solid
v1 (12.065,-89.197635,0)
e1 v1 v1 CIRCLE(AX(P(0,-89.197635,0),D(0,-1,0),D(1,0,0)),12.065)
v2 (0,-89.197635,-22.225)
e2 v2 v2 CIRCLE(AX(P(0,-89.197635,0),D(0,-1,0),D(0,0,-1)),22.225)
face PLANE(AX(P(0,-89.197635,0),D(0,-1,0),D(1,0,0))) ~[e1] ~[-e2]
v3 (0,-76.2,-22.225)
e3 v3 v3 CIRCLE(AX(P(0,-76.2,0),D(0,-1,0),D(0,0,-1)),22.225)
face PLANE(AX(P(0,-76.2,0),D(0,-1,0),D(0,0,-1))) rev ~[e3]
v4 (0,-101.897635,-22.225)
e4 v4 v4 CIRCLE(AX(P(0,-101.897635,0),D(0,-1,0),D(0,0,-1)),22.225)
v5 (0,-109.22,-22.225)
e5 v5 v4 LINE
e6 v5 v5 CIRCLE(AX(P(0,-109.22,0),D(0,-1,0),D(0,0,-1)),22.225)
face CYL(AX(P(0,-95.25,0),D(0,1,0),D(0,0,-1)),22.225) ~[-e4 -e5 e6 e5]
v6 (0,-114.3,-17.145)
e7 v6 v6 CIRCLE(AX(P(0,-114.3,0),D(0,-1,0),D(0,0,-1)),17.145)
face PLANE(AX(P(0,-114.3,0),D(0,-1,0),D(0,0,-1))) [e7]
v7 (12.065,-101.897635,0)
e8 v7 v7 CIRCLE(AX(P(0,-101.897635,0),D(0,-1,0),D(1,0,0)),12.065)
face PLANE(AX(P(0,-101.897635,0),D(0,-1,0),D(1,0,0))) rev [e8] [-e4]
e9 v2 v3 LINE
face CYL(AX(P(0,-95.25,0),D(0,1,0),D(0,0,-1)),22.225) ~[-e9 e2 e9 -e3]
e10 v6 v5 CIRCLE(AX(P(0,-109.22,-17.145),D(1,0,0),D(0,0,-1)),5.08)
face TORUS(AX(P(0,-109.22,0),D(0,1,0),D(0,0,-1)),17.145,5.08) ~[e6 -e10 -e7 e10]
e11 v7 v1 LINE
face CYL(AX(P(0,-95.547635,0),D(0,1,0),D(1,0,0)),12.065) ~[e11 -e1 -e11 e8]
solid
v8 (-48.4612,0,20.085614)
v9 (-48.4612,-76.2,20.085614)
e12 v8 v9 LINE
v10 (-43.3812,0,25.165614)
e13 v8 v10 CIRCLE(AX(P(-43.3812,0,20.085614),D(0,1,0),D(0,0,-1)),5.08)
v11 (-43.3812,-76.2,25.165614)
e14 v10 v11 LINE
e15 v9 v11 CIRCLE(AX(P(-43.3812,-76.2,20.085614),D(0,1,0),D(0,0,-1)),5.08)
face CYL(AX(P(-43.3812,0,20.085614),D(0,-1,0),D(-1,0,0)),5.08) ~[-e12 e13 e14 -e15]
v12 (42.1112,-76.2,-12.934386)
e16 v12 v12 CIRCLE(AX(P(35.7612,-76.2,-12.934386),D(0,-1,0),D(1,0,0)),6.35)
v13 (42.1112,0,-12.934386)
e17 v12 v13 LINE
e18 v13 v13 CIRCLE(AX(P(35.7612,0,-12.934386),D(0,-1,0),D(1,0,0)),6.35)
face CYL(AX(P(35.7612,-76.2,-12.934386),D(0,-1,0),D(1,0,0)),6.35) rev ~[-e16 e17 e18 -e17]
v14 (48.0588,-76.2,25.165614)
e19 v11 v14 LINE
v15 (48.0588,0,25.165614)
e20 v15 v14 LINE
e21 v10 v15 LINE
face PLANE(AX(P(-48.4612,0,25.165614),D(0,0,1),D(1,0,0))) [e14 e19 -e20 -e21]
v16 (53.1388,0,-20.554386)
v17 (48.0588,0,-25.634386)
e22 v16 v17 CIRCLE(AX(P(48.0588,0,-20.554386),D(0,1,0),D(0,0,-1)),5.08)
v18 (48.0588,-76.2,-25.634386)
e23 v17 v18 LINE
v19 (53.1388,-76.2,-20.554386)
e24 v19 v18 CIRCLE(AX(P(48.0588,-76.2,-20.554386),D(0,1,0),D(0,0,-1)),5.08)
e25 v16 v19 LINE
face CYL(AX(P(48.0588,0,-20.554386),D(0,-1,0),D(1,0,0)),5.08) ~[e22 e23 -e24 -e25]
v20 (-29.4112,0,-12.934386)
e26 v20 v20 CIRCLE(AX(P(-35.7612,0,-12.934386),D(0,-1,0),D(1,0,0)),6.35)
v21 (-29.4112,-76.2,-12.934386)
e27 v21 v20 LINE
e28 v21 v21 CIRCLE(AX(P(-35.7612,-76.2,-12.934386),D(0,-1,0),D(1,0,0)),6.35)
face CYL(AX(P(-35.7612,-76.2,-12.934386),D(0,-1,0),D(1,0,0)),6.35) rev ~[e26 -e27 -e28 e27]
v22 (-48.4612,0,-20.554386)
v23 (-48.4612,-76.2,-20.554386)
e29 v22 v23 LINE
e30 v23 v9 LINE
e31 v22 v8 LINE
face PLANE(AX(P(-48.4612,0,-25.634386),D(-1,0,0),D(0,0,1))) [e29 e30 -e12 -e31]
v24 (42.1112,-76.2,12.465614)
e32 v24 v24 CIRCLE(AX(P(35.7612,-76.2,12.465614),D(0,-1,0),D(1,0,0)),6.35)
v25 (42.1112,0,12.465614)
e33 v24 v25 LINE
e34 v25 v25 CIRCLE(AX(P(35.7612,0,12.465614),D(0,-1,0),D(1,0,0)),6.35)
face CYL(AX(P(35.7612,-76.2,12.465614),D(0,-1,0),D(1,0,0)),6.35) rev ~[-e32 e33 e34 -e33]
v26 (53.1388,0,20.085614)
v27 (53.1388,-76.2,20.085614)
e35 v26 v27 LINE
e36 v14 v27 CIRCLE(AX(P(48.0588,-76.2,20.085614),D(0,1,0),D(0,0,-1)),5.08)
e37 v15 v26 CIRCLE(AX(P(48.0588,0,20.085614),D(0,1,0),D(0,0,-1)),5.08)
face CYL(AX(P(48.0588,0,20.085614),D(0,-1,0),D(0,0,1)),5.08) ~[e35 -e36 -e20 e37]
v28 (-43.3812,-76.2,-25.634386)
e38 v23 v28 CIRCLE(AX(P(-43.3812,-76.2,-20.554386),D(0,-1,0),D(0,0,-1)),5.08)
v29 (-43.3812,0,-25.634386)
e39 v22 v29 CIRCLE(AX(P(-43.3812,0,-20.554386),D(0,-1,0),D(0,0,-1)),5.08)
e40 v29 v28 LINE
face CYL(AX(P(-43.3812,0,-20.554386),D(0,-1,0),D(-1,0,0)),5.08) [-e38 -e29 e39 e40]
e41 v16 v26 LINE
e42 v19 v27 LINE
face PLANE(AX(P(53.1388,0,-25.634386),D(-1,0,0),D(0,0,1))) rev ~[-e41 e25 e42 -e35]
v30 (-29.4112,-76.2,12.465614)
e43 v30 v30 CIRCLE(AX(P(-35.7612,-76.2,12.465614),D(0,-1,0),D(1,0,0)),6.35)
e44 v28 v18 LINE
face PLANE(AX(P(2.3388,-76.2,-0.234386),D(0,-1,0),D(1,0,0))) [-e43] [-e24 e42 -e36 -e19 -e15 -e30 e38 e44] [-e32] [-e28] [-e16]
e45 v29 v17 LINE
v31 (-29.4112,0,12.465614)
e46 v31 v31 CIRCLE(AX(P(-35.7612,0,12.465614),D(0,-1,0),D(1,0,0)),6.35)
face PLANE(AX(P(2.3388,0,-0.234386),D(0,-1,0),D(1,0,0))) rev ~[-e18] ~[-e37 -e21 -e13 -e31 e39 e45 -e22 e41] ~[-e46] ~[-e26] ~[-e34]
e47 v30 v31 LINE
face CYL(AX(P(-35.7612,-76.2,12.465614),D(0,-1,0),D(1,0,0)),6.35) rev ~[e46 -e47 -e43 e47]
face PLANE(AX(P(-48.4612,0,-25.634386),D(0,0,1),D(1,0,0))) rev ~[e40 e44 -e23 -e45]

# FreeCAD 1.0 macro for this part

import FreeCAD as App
import Part
import Sketcher

V = App.Vector
Q = App.Units.Quantity


def edges_at(feature, points):
    """Names of the edges that pass closest to the given points."""
    edges = feature.Shape.Edges
    near = lambda p: min(range(len(edges)), key=lambda i: edges[i].distToShape(Part.Vertex(*p))[0])
    return sorted({f"Edge{near(p) + 1}" for p in points})


def add_polygon(sketch, points):
    """Adds a closed chain of lines whose ends are joined by coincident constraints."""
    first, n = sketch.GeometryCount, len(points)
    for a, b in zip(points, points[1:] + points[:1]):
        sketch.addGeometry(Part.LineSegment(App.Vector(*a, 0), App.Vector(*b, 0)), False)
    for i in range(n):
        sketch.addConstraint(Sketcher.Constraint("Coincident", first + i, 2, first + (i + 1) % n, 1))

doc = App.newDocument("Part")
body = doc.addObject("PartDesign::Body", "Body")

# Sketch on XZ plane
sketch1 = doc.addObject("Sketcher::SketchObject", "Sketch")
body.addObject(sketch1)
sketch1.AttachmentSupport = (doc.XZ_Plane, [""])
sketch1.MapMode = "FlatFace"
add_polygon(sketch1, [(-48.4612, 25.165614), (-48.4612, -25.634386), (53.1388, -25.634386), (53.1388, 25.165614)])  # lines 0-3
sketch1.addConstraint([
    Sketcher.Constraint("Vertical", 0),
    Sketcher.Constraint("Horizontal", 1),
    Sketcher.Constraint("Vertical", 2),
    Sketcher.Constraint("Horizontal", 3),
    Sketcher.Constraint("DistanceX", 1, 1, 1, 2, Q("4 in")),
    Sketcher.Constraint("DistanceY", 0, 2, 0, 1, Q("2 in")),
    Sketcher.Constraint("DistanceX", 0, 2, -1, 1, Q("48.4612 mm")),
    Sketcher.Constraint("DistanceY", 0, 2, -1, 1, Q("25.634386 mm")),
])
pad1 = doc.addObject("PartDesign::Pad", "Pad")
body.addObject(pad1)
pad1.Profile = sketch1
pad1.Length = Q("3 in")

# Sketch on XZ plane
sketch2 = doc.addObject("Sketcher::SketchObject", "Sketch001")
body.addObject(sketch2)
sketch2.AttachmentSupport = (doc.XZ_Plane, [""])
sketch2.MapMode = "FlatFace"
sketch2.AttachmentOffset = App.Placement(V(0, 0, 3 * 25.4), App.Rotation())
sketch2.addGeometry(Part.Circle(V(35.7612, 12.465614, 0), V(0, 0, 1), 6.35), False)
sketch2.addConstraint([
    Sketcher.Constraint("Diameter", 0, Q("0.5 in")),
    Sketcher.Constraint("DistanceX", -1, 1, 0, 3, Q("35.7612 mm")),
    Sketcher.Constraint("DistanceY", -1, 1, 0, 3, Q("12.465614 mm")),
])
pocket1 = doc.addObject("PartDesign::Pocket", "Pocket")
body.addObject(pocket1)
pocket1.Profile = sketch2
pocket1.Length = Q("1 in")

# Sketch on XZ plane
sketch3 = doc.addObject("Sketcher::SketchObject", "Sketch002")
body.addObject(sketch3)
sketch3.AttachmentSupport = (doc.XZ_Plane, [""])
sketch3.MapMode = "FlatFace"
sketch3.AttachmentOffset = App.Placement(V(0, 0, 3 * 25.4), App.Rotation())
sketch3.addGeometry([
    Part.Circle(V(-35.7612, 12.465614, 0), V(0, 0, 1), 6.35),
    Part.Circle(V(-35.7612, -12.934386, 0), V(0, 0, 1), 6.35),
    Part.Circle(V(35.7612, 12.465614, 0), V(0, 0, 1), 6.35),
    Part.Circle(V(35.7612, -12.934386, 0), V(0, 0, 1), 6.35),
], False)
sketch3.addConstraint([
    Sketcher.Constraint("Equal", 0, 1),
    Sketcher.Constraint("Equal", 1, 2),
    Sketcher.Constraint("Equal", 2, 3),
    Sketcher.Constraint("Symmetric", 0, 3, 2, 3, -2),
    Sketcher.Constraint("Symmetric", 1, 3, 3, 3, -2),
    Sketcher.Constraint("Vertical", 0, 3, 1, 3),
    Sketcher.Constraint("Diameter", 0, Q("0.5 in")),
    Sketcher.Constraint("DistanceY", 1, 3, 0, 3, Q("1 in")),
    Sketcher.Constraint("DistanceX", 0, 3, -1, 1, Q("35.7612 mm")),
    Sketcher.Constraint("DistanceY", -1, 1, 0, 3, Q("12.465614 mm")),
])
pocket2 = doc.addObject("PartDesign::Pocket", "Pocket001")
body.addObject(pocket2)
pocket2.Profile = sketch3
pocket2.Type = "ThroughAll"
doc.recompute()

fillet = doc.addObject("PartDesign::Fillet", "Fillet")
body.addObject(fillet)
fillet.Base = (pocket2, edges_at(pocket2, [(-48.461, -38.1, -25.634), (53.139, -38.1, -25.634), (-48.461, -38.1, 25.166)]))
fillet.Radius = Q("0.2 in")
doc.recompute()

fillet2 = doc.addObject("PartDesign::Fillet", "Fillet001")
body.addObject(fillet2)
fillet2.Base = (fillet, edges_at(fillet, [(53.139, -38.1, 25.166)]))
fillet2.Radius = Q("0.2 in")
body2 = doc.addObject("PartDesign::Body", "Body001")

# Sketch on YZ plane
sketch4 = doc.addObject("Sketcher::SketchObject", "Sketch003")
body2.addObject(sketch4)
sketch4.AttachmentSupport = (doc.getObject("YZ_Plane001"), [""])
sketch4.MapMode = "FlatFace"
add_polygon(sketch4, [(-114.3, 0), (-114.3, -22.225), (-76.2, -22.225), (-76.2, 0)])  # lines 0-3
sketch4.addConstraint([
    Sketcher.Constraint("Vertical", 0),
    Sketcher.Constraint("Horizontal", 1),
    Sketcher.Constraint("Vertical", 2),
    Sketcher.Constraint("Horizontal", 3),
    Sketcher.Constraint("PointOnObject", 2, 2, -1),
    Sketcher.Constraint("DistanceX", 1, 1, 1, 2, Q("1.5 in")),
    Sketcher.Constraint("DistanceX", 1, 2, -1, 1, Q("3 in")),
    Sketcher.Constraint("DistanceY", 0, 2, 0, 1, Q("0.875 in")),
])
revolution = doc.addObject("PartDesign::Revolution", "Revolution")
body2.addObject(revolution)
revolution.Profile = sketch4
revolution.ReferenceAxis = (sketch4, ["H_Axis"])
revolution.Angle = 360

# Sketch on XY plane
sketch5 = doc.addObject("Sketcher::SketchObject", "Sketch004")
body2.addObject(sketch5)
sketch5.AttachmentSupport = (doc.getObject("XY_Plane001"), [""])
sketch5.MapMode = "FlatFace"
add_polygon(sketch5, [(12.065, -89.197635), (12.065, -101.897635), (22.225, -101.897635), (22.225, -89.197635)])  # lines 0-3
sketch5.addConstraint([
    Sketcher.Constraint("Vertical", 0),
    Sketcher.Constraint("Horizontal", 1),
    Sketcher.Constraint("Vertical", 2),
    Sketcher.Constraint("Horizontal", 3),
    Sketcher.Constraint("DistanceX", 1, 1, 1, 2, Q("0.4 in")),
    Sketcher.Constraint("DistanceY", 0, 2, 0, 1, Q("0.5 in")),
    Sketcher.Constraint("DistanceX", -1, 1, 0, 2, Q("0.475 in")),
    Sketcher.Constraint("DistanceY", 0, 2, -1, 1, Q("101.897635 mm")),
])
groove = doc.addObject("PartDesign::Groove", "Groove")
body2.addObject(groove)
groove.Profile = sketch5
groove.ReferenceAxis = (sketch5, ["V_Axis"])
groove.Angle = 360
doc.recompute()

fillet3 = doc.addObject("PartDesign::Fillet", "Fillet002")
body2.addObject(fillet3)
fillet3.Base = (groove, edges_at(groove, [(0, -114.3, 22.225)]))
fillet3.Radius = Q("0.2 in")

doc.recompute()
